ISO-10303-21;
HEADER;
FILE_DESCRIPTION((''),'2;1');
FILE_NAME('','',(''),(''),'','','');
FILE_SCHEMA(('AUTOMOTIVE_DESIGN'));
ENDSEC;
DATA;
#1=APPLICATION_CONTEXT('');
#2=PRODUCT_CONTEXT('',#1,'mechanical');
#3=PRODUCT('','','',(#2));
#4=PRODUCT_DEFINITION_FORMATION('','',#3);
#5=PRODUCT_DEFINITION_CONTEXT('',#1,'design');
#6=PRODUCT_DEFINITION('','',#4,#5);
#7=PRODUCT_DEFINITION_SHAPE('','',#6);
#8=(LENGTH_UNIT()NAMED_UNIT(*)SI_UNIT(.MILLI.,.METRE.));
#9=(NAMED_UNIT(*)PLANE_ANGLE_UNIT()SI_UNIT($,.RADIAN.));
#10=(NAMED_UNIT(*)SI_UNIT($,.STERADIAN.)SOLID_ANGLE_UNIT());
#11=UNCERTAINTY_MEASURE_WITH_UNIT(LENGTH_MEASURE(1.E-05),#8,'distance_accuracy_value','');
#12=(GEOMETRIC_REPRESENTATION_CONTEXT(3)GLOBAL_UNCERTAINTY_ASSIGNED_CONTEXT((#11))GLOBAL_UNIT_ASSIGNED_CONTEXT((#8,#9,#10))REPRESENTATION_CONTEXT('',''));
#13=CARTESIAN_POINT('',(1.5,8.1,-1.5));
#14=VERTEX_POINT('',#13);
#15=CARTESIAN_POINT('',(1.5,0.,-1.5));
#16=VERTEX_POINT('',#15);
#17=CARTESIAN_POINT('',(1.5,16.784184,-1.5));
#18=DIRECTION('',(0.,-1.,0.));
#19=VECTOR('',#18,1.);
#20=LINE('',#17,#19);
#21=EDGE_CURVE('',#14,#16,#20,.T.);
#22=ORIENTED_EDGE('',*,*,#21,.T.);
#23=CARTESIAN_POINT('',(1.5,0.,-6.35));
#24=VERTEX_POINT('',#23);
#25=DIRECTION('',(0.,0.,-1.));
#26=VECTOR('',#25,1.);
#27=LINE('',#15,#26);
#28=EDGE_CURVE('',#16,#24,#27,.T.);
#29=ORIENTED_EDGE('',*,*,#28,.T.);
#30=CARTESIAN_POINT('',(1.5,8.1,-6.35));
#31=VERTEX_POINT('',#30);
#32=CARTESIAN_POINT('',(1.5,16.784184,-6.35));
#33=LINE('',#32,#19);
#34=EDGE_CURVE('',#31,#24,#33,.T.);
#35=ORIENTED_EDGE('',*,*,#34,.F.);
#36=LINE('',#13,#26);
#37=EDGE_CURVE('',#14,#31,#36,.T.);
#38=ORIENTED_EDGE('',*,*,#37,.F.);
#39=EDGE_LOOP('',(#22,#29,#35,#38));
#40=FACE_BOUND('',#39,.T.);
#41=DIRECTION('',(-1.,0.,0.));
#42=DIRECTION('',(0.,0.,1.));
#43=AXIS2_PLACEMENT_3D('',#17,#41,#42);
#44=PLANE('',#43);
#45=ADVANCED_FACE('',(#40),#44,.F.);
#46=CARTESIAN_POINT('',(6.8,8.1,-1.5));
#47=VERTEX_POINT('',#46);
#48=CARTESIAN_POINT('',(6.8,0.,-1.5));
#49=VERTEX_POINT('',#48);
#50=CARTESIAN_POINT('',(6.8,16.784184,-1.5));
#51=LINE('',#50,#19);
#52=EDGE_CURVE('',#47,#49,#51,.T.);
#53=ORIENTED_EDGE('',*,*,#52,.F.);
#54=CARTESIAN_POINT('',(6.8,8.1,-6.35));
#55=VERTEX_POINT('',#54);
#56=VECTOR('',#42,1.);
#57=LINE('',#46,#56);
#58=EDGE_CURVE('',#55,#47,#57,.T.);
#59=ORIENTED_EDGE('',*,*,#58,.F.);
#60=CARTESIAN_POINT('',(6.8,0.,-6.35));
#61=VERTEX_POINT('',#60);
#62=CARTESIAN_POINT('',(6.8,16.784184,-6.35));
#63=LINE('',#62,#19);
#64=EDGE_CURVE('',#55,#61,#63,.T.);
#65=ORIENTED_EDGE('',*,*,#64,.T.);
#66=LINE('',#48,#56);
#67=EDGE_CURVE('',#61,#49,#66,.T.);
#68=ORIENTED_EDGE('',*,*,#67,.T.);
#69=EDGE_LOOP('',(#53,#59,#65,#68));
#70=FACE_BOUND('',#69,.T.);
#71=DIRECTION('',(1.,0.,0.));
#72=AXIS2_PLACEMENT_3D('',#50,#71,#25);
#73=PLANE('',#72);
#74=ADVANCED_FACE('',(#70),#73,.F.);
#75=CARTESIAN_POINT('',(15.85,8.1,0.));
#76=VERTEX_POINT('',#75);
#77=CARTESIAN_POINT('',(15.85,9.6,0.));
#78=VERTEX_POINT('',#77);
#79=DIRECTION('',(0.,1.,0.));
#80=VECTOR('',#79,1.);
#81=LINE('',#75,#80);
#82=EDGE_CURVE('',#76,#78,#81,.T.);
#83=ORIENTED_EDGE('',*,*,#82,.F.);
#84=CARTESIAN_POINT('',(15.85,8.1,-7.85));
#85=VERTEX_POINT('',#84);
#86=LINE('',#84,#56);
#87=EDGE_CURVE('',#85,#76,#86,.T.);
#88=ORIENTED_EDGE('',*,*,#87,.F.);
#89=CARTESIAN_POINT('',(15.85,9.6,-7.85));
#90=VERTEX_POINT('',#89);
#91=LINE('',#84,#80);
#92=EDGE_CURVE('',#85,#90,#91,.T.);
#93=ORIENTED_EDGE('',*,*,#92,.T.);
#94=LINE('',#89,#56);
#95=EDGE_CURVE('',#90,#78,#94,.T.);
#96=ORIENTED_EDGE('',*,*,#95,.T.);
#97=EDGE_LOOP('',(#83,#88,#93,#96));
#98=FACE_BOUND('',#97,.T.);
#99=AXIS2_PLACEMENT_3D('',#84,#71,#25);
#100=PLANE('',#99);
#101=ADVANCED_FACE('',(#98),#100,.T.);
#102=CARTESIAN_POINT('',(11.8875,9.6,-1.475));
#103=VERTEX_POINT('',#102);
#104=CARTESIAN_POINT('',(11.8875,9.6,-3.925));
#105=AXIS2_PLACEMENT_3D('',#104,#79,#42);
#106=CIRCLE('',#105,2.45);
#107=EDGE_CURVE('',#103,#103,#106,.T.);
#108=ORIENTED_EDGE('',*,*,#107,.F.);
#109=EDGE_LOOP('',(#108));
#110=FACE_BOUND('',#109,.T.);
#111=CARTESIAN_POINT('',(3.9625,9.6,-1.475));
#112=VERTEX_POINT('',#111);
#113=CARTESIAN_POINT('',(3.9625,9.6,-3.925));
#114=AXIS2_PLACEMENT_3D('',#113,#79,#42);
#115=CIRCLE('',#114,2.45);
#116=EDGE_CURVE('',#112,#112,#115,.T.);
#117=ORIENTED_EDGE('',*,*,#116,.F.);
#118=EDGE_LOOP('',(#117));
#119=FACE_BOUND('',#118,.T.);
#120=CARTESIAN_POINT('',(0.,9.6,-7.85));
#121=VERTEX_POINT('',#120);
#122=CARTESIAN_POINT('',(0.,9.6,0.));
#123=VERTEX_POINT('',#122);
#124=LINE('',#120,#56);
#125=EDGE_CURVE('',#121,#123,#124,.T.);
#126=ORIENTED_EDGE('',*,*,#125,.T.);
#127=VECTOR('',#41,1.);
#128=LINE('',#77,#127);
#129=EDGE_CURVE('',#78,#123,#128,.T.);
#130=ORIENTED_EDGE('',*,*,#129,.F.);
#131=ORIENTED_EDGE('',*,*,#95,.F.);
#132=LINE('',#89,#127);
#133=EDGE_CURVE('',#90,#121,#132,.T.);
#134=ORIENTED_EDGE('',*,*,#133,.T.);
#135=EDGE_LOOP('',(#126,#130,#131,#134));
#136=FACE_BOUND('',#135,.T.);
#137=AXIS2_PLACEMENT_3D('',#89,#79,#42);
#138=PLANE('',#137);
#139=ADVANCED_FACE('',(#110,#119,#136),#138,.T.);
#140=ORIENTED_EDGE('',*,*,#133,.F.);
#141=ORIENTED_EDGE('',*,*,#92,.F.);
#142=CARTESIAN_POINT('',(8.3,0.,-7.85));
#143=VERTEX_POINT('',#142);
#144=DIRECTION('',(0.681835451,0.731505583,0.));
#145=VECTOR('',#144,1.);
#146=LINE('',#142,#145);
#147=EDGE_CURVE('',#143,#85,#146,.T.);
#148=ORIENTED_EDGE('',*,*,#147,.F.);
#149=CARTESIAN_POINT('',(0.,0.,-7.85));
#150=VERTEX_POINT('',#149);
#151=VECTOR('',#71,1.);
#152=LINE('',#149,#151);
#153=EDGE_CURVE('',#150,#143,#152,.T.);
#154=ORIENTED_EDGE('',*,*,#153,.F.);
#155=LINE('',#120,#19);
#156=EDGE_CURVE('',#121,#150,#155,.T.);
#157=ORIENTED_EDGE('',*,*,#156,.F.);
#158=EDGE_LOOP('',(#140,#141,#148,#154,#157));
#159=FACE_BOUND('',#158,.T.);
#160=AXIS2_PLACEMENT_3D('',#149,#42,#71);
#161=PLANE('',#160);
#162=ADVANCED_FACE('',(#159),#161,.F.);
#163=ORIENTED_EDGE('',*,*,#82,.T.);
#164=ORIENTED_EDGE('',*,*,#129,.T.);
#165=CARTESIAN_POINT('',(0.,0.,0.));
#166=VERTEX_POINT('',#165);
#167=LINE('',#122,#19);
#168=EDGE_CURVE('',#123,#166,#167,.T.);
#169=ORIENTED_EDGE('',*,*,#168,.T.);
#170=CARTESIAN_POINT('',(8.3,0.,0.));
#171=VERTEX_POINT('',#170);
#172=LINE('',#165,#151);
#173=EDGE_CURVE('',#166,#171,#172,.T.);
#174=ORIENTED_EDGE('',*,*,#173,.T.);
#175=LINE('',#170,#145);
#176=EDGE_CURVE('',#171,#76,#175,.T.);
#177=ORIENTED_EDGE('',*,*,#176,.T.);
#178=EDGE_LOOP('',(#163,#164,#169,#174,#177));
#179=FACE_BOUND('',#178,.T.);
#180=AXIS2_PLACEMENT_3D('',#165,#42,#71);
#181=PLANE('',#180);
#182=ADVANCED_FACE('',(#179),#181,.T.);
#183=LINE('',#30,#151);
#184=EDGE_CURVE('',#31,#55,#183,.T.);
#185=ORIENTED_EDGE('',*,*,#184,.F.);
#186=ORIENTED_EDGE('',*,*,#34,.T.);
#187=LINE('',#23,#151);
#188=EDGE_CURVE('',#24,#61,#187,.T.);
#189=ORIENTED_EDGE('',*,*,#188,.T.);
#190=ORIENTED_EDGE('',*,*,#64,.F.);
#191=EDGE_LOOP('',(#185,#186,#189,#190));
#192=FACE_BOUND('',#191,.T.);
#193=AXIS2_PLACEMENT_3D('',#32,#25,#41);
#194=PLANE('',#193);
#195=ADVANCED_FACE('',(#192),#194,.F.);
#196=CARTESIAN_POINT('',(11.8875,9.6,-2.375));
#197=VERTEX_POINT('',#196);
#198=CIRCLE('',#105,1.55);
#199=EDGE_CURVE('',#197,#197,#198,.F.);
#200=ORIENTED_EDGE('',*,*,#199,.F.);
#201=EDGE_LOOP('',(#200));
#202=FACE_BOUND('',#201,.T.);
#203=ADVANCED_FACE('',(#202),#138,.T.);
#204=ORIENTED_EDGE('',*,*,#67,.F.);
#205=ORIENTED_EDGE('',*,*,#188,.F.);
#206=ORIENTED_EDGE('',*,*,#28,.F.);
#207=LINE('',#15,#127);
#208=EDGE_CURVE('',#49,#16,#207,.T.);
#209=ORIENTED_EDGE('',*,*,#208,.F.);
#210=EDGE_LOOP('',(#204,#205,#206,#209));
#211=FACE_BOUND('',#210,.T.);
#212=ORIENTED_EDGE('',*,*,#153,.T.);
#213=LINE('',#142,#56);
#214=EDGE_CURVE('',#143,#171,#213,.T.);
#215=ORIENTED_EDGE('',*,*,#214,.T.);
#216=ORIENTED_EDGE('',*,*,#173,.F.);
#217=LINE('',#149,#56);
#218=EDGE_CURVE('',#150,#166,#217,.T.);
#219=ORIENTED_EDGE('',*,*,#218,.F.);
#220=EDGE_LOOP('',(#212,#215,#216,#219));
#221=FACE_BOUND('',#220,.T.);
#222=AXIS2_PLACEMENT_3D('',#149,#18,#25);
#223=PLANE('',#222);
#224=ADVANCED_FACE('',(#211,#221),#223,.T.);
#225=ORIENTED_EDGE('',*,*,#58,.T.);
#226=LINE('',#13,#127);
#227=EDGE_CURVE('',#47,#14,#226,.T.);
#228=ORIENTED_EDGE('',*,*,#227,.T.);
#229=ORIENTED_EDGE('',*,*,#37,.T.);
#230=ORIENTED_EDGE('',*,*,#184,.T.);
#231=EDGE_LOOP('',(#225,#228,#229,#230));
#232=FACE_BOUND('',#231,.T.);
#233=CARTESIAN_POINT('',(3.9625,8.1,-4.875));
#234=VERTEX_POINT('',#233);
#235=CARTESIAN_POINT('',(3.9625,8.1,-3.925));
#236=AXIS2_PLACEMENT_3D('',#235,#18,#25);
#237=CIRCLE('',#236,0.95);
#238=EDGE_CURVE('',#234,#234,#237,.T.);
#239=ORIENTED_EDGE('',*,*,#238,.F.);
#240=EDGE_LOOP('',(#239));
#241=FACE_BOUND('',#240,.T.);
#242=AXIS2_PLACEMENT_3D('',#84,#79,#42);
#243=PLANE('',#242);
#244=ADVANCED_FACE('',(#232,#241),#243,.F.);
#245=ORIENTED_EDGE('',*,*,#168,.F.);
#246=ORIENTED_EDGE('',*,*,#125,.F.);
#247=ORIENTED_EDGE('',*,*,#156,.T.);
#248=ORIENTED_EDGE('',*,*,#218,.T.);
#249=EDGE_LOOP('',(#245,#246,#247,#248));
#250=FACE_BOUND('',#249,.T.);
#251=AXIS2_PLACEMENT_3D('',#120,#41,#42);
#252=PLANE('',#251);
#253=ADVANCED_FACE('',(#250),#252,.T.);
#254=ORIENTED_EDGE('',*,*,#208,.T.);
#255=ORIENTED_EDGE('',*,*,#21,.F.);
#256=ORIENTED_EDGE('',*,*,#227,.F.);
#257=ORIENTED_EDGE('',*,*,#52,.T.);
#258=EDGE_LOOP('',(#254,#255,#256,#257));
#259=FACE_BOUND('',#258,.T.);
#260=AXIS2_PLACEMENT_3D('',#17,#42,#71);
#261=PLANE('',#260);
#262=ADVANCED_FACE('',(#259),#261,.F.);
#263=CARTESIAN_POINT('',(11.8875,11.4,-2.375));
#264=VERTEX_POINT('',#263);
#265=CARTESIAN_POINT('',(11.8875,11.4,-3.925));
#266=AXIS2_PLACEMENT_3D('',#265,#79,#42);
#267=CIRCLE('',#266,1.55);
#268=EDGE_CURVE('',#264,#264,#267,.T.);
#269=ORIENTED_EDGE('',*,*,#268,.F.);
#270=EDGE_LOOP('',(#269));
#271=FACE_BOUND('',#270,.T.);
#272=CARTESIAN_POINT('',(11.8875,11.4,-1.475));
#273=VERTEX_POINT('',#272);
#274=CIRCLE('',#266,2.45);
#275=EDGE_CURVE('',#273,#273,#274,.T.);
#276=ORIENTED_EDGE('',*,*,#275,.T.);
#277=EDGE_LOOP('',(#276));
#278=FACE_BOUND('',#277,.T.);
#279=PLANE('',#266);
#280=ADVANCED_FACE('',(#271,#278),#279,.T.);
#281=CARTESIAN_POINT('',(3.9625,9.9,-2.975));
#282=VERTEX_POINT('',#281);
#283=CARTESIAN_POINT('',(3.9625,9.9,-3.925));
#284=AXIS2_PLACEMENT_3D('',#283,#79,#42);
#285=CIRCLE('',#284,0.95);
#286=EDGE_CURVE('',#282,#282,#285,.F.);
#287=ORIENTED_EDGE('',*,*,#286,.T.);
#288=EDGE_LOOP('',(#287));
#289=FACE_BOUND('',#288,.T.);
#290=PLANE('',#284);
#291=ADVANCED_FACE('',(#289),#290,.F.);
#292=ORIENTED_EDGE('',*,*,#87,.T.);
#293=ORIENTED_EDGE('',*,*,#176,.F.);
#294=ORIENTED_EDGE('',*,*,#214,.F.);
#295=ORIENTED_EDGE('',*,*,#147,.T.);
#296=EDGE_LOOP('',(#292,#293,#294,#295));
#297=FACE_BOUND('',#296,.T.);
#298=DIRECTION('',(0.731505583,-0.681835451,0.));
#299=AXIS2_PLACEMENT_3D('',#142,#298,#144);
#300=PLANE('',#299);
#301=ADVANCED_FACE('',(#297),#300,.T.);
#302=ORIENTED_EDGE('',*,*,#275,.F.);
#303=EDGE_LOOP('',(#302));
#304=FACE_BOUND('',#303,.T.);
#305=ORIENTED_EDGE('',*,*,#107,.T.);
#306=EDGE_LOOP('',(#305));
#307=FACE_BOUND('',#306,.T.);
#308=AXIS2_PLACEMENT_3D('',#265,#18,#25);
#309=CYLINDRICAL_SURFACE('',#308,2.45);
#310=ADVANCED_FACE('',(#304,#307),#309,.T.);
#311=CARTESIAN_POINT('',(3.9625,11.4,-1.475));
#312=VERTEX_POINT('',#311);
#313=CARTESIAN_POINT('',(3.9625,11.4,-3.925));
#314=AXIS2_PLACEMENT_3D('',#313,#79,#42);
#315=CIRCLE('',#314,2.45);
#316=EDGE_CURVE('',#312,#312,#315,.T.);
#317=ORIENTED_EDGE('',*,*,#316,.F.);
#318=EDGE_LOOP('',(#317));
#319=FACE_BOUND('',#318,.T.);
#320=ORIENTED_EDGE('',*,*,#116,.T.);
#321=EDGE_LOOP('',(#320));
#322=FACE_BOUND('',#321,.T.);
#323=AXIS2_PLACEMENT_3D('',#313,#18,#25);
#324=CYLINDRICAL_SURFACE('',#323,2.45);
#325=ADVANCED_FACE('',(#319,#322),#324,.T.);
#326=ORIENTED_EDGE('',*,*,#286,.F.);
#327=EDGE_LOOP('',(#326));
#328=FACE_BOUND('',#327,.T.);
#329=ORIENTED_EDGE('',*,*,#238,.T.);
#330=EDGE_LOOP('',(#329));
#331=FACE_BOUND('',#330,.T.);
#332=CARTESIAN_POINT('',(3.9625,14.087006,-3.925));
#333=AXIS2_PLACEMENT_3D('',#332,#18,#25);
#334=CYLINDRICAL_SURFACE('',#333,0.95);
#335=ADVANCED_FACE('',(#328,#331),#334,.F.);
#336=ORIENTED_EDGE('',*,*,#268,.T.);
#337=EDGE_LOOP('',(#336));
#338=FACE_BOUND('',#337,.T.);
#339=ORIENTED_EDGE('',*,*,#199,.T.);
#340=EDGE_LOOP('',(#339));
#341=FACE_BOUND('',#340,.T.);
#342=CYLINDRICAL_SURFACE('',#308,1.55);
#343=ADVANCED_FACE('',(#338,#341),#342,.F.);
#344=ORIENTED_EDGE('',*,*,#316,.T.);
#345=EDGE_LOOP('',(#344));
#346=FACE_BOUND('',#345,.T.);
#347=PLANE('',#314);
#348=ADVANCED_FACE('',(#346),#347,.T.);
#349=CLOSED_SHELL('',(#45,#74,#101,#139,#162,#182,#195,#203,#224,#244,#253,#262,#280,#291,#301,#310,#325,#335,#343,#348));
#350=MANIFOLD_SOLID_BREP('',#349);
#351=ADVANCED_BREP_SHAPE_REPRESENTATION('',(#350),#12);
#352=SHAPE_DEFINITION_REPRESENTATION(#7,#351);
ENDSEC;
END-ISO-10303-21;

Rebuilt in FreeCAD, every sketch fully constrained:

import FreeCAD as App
import Part
import Sketcher
from FreeCAD import Vector
Q = App.Units.Quantity


def add_polygon(sketch, points):
    """Adds a closed chain of lines whose ends are joined by coincident constraints."""
    first, n = sketch.GeometryCount, len(points)
    for a, b in zip(points, points[1:] + points[:1]):
        sketch.addGeometry(Part.LineSegment(App.Vector(*a, 0), App.Vector(*b, 0)), False)
    for i in range(n):
        sketch.addConstraint(Sketcher.Constraint("Coincident", first + i, 2, first + (i + 1) % n, 1))

doc = App.newDocument("Part")
params = doc.addObject("Spreadsheet::Sheet", "Params")
for row, (alias, value) in enumerate([
    ("sketch1_width", "8.3 mm"),
    ("sketch1_height", "9.6 mm"),
    ("sketch1_height2", "1.5 mm"),
    ("sketch1_width2", "15.85 mm"),
    ("pad1_length", "7.85 mm"),
    ("sketch2_width", "5.3 mm"),
    ("sketch2_height", "4.85 mm"),
    ("pocket1_length", "8.1 mm"),
    ("sketch3_diameter", "4.9 mm"),
    ("sketch3_diameter2", "3.1 mm"),
    ("pad2_length", "1.8 mm"),
    ("sketch4_diameter", "1.9 mm"),
    ("pocket2_length", "1.8 mm"),
], start=1):
    params.set(f"A{row}", alias)
    params.set(f"B{row}", "=" + value)
    params.setAlias(f"B{row}", alias)

body = doc.addObject("PartDesign::Body", "Body")

# Sketch on XY plane
sketch1 = doc.addObject("Sketcher::SketchObject", "Sketch")
body.addObject(sketch1)
sketch1.AttachmentSupport = (doc.XY_Plane, [""])
sketch1.MapMode = "FlatFace"
add_polygon(sketch1, [(0, 9.6), (0, 0), (8.3, 0), (15.85, 8.1), (15.85, 9.6)])  # lines 0-4
sketch1.addConstraint([
    Sketcher.Constraint("Vertical", 0),
    Sketcher.Constraint("Horizontal", 1),
    Sketcher.Constraint("Vertical", 3),
    Sketcher.Constraint("Horizontal", 4),
    Sketcher.Constraint("Coincident", 0, 2, -1, 1),
    Sketcher.Constraint("DistanceX", 1, 1, 1, 2, Q("8.3 mm")),
    Sketcher.Constraint("DistanceY", 0, 2, 0, 1, Q("9.6 mm")),
    Sketcher.Constraint("DistanceY", 3, 1, 3, 2, Q("1.5 mm")),
    Sketcher.Constraint("DistanceX", 4, 2, 4, 1, Q("15.85 mm")),
])
sketch1.setExpression("Constraints[10]", "Params.sketch1_width")
sketch1.setExpression("Constraints[11]", "Params.sketch1_height")
sketch1.setExpression("Constraints[12]", "Params.sketch1_height2")
sketch1.setExpression("Constraints[13]", "Params.sketch1_width2")
pad1 = doc.addObject("PartDesign::Pad", "Pad")
body.addObject(pad1)
pad1.Profile = sketch1
pad1.setExpression("Length", "Params.pad1_length")
pad1.Reversed = True

# Sketch on XZ plane
sketch2 = doc.addObject("Sketcher::SketchObject", "Sketch001")
body.addObject(sketch2)
sketch2.AttachmentSupport = (doc.XZ_Plane, [""])
sketch2.MapMode = "FlatFace"
add_polygon(sketch2, [(1.5, -1.5), (1.5, -6.35), (6.8, -6.35), (6.8, -1.5)])  # lines 0-3
sketch2.addConstraint([
    Sketcher.Constraint("Vertical", 0),
    Sketcher.Constraint("Horizontal", 1),
    Sketcher.Constraint("Vertical", 2),
    Sketcher.Constraint("Horizontal", 3),
    Sketcher.Constraint("DistanceX", 1, 1, 1, 2, Q("5.3 mm")),
    Sketcher.Constraint("DistanceY", 0, 2, 0, 1, Q("4.85 mm")),
    Sketcher.Constraint("DistanceX", -1, 1, 0, 2, Q("1.5 mm")),
    Sketcher.Constraint("DistanceY", 2, 2, -1, 1, Q("1.5 mm")),
])
sketch2.setExpression("Constraints[8]", "Params.sketch2_width")
sketch2.setExpression("Constraints[9]", "Params.sketch2_height")
pocket1 = doc.addObject("PartDesign::Pocket", "Pocket")
body.addObject(pocket1)
pocket1.Profile = sketch2
pocket1.setExpression("Length", "Params.pocket1_length")

# Sketch on XZ plane
sketch3 = doc.addObject("Sketcher::SketchObject", "Sketch002")
body.addObject(sketch3)
sketch3.AttachmentSupport = (doc.XZ_Plane, [""])
sketch3.MapMode = "FlatFace"
sketch3.AttachmentOffset = App.Placement(Vector(0, 0, -9.6), App.Rotation())
sketch3.addGeometry([
    Part.Circle(Vector(3.9625, -3.925, 0), Vector(0, 0, 1), 2.45),
    Part.Circle(Vector(11.8875, -3.925, 0), Vector(0, 0, 1), 2.45),
    Part.Circle(Vector(11.8875, -3.925, 0), Vector(0, 0, 1), 1.55),
], False)
sketch3.addConstraint([
    Sketcher.Constraint("Coincident", 2, 3, 1, 3),
    Sketcher.Constraint("Equal", 0, 1),
    Sketcher.Constraint("Horizontal", 0, 3, 1, 3),
    Sketcher.Constraint("Diameter", 0, Q("4.9 mm")),
    Sketcher.Constraint("Diameter", 2, Q("3.1 mm")),
    Sketcher.Constraint("DistanceY", 0, 3, -1, 1, Q("3.925 mm")),
    Sketcher.Constraint("DistanceX", 0, 3, 1, 3, Q("7.925 mm")),
    Sketcher.Constraint("DistanceX", -1, 1, 0, 3, Q("3.9625 mm")),
])
sketch3.setExpression("Constraints[3]", "Params.sketch3_diameter")
sketch3.setExpression("Constraints[4]", "Params.sketch3_diameter2")
pad2 = doc.addObject("PartDesign::Pad", "Pad001")
body.addObject(pad2)
pad2.Profile = sketch3
pad2.setExpression("Length", "Params.pad2_length")
pad2.Reversed = True

# Sketch on XZ plane
sketch4 = doc.addObject("Sketcher::SketchObject", "Sketch003")
body.addObject(sketch4)
sketch4.AttachmentSupport = (doc.XZ_Plane, [""])
sketch4.MapMode = "FlatFace"
sketch4.AttachmentOffset = App.Placement(Vector(0, 0, -8.1), App.Rotation())
sketch4.addGeometry(Part.Circle(Vector(3.9625, -3.925, 0), Vector(0, 0, 1), 0.95), False)
sketch4.addConstraint([
    Sketcher.Constraint("Diameter", 0, Q("1.9 mm")),
    Sketcher.Constraint("DistanceY", 0, 3, -1, 1, Q("3.925 mm")),
    Sketcher.Constraint("DistanceX", -1, 1, 0, 3, Q("3.9625 mm")),
])
sketch4.setExpression("Constraints[0]", "Params.sketch4_diameter")
pocket2 = doc.addObject("PartDesign::Pocket", "Pocket001")
body.addObject(pocket2)
pocket2.Profile = sketch4
pocket2.setExpression("Length", "Params.pocket2_length")

doc.recompute()
